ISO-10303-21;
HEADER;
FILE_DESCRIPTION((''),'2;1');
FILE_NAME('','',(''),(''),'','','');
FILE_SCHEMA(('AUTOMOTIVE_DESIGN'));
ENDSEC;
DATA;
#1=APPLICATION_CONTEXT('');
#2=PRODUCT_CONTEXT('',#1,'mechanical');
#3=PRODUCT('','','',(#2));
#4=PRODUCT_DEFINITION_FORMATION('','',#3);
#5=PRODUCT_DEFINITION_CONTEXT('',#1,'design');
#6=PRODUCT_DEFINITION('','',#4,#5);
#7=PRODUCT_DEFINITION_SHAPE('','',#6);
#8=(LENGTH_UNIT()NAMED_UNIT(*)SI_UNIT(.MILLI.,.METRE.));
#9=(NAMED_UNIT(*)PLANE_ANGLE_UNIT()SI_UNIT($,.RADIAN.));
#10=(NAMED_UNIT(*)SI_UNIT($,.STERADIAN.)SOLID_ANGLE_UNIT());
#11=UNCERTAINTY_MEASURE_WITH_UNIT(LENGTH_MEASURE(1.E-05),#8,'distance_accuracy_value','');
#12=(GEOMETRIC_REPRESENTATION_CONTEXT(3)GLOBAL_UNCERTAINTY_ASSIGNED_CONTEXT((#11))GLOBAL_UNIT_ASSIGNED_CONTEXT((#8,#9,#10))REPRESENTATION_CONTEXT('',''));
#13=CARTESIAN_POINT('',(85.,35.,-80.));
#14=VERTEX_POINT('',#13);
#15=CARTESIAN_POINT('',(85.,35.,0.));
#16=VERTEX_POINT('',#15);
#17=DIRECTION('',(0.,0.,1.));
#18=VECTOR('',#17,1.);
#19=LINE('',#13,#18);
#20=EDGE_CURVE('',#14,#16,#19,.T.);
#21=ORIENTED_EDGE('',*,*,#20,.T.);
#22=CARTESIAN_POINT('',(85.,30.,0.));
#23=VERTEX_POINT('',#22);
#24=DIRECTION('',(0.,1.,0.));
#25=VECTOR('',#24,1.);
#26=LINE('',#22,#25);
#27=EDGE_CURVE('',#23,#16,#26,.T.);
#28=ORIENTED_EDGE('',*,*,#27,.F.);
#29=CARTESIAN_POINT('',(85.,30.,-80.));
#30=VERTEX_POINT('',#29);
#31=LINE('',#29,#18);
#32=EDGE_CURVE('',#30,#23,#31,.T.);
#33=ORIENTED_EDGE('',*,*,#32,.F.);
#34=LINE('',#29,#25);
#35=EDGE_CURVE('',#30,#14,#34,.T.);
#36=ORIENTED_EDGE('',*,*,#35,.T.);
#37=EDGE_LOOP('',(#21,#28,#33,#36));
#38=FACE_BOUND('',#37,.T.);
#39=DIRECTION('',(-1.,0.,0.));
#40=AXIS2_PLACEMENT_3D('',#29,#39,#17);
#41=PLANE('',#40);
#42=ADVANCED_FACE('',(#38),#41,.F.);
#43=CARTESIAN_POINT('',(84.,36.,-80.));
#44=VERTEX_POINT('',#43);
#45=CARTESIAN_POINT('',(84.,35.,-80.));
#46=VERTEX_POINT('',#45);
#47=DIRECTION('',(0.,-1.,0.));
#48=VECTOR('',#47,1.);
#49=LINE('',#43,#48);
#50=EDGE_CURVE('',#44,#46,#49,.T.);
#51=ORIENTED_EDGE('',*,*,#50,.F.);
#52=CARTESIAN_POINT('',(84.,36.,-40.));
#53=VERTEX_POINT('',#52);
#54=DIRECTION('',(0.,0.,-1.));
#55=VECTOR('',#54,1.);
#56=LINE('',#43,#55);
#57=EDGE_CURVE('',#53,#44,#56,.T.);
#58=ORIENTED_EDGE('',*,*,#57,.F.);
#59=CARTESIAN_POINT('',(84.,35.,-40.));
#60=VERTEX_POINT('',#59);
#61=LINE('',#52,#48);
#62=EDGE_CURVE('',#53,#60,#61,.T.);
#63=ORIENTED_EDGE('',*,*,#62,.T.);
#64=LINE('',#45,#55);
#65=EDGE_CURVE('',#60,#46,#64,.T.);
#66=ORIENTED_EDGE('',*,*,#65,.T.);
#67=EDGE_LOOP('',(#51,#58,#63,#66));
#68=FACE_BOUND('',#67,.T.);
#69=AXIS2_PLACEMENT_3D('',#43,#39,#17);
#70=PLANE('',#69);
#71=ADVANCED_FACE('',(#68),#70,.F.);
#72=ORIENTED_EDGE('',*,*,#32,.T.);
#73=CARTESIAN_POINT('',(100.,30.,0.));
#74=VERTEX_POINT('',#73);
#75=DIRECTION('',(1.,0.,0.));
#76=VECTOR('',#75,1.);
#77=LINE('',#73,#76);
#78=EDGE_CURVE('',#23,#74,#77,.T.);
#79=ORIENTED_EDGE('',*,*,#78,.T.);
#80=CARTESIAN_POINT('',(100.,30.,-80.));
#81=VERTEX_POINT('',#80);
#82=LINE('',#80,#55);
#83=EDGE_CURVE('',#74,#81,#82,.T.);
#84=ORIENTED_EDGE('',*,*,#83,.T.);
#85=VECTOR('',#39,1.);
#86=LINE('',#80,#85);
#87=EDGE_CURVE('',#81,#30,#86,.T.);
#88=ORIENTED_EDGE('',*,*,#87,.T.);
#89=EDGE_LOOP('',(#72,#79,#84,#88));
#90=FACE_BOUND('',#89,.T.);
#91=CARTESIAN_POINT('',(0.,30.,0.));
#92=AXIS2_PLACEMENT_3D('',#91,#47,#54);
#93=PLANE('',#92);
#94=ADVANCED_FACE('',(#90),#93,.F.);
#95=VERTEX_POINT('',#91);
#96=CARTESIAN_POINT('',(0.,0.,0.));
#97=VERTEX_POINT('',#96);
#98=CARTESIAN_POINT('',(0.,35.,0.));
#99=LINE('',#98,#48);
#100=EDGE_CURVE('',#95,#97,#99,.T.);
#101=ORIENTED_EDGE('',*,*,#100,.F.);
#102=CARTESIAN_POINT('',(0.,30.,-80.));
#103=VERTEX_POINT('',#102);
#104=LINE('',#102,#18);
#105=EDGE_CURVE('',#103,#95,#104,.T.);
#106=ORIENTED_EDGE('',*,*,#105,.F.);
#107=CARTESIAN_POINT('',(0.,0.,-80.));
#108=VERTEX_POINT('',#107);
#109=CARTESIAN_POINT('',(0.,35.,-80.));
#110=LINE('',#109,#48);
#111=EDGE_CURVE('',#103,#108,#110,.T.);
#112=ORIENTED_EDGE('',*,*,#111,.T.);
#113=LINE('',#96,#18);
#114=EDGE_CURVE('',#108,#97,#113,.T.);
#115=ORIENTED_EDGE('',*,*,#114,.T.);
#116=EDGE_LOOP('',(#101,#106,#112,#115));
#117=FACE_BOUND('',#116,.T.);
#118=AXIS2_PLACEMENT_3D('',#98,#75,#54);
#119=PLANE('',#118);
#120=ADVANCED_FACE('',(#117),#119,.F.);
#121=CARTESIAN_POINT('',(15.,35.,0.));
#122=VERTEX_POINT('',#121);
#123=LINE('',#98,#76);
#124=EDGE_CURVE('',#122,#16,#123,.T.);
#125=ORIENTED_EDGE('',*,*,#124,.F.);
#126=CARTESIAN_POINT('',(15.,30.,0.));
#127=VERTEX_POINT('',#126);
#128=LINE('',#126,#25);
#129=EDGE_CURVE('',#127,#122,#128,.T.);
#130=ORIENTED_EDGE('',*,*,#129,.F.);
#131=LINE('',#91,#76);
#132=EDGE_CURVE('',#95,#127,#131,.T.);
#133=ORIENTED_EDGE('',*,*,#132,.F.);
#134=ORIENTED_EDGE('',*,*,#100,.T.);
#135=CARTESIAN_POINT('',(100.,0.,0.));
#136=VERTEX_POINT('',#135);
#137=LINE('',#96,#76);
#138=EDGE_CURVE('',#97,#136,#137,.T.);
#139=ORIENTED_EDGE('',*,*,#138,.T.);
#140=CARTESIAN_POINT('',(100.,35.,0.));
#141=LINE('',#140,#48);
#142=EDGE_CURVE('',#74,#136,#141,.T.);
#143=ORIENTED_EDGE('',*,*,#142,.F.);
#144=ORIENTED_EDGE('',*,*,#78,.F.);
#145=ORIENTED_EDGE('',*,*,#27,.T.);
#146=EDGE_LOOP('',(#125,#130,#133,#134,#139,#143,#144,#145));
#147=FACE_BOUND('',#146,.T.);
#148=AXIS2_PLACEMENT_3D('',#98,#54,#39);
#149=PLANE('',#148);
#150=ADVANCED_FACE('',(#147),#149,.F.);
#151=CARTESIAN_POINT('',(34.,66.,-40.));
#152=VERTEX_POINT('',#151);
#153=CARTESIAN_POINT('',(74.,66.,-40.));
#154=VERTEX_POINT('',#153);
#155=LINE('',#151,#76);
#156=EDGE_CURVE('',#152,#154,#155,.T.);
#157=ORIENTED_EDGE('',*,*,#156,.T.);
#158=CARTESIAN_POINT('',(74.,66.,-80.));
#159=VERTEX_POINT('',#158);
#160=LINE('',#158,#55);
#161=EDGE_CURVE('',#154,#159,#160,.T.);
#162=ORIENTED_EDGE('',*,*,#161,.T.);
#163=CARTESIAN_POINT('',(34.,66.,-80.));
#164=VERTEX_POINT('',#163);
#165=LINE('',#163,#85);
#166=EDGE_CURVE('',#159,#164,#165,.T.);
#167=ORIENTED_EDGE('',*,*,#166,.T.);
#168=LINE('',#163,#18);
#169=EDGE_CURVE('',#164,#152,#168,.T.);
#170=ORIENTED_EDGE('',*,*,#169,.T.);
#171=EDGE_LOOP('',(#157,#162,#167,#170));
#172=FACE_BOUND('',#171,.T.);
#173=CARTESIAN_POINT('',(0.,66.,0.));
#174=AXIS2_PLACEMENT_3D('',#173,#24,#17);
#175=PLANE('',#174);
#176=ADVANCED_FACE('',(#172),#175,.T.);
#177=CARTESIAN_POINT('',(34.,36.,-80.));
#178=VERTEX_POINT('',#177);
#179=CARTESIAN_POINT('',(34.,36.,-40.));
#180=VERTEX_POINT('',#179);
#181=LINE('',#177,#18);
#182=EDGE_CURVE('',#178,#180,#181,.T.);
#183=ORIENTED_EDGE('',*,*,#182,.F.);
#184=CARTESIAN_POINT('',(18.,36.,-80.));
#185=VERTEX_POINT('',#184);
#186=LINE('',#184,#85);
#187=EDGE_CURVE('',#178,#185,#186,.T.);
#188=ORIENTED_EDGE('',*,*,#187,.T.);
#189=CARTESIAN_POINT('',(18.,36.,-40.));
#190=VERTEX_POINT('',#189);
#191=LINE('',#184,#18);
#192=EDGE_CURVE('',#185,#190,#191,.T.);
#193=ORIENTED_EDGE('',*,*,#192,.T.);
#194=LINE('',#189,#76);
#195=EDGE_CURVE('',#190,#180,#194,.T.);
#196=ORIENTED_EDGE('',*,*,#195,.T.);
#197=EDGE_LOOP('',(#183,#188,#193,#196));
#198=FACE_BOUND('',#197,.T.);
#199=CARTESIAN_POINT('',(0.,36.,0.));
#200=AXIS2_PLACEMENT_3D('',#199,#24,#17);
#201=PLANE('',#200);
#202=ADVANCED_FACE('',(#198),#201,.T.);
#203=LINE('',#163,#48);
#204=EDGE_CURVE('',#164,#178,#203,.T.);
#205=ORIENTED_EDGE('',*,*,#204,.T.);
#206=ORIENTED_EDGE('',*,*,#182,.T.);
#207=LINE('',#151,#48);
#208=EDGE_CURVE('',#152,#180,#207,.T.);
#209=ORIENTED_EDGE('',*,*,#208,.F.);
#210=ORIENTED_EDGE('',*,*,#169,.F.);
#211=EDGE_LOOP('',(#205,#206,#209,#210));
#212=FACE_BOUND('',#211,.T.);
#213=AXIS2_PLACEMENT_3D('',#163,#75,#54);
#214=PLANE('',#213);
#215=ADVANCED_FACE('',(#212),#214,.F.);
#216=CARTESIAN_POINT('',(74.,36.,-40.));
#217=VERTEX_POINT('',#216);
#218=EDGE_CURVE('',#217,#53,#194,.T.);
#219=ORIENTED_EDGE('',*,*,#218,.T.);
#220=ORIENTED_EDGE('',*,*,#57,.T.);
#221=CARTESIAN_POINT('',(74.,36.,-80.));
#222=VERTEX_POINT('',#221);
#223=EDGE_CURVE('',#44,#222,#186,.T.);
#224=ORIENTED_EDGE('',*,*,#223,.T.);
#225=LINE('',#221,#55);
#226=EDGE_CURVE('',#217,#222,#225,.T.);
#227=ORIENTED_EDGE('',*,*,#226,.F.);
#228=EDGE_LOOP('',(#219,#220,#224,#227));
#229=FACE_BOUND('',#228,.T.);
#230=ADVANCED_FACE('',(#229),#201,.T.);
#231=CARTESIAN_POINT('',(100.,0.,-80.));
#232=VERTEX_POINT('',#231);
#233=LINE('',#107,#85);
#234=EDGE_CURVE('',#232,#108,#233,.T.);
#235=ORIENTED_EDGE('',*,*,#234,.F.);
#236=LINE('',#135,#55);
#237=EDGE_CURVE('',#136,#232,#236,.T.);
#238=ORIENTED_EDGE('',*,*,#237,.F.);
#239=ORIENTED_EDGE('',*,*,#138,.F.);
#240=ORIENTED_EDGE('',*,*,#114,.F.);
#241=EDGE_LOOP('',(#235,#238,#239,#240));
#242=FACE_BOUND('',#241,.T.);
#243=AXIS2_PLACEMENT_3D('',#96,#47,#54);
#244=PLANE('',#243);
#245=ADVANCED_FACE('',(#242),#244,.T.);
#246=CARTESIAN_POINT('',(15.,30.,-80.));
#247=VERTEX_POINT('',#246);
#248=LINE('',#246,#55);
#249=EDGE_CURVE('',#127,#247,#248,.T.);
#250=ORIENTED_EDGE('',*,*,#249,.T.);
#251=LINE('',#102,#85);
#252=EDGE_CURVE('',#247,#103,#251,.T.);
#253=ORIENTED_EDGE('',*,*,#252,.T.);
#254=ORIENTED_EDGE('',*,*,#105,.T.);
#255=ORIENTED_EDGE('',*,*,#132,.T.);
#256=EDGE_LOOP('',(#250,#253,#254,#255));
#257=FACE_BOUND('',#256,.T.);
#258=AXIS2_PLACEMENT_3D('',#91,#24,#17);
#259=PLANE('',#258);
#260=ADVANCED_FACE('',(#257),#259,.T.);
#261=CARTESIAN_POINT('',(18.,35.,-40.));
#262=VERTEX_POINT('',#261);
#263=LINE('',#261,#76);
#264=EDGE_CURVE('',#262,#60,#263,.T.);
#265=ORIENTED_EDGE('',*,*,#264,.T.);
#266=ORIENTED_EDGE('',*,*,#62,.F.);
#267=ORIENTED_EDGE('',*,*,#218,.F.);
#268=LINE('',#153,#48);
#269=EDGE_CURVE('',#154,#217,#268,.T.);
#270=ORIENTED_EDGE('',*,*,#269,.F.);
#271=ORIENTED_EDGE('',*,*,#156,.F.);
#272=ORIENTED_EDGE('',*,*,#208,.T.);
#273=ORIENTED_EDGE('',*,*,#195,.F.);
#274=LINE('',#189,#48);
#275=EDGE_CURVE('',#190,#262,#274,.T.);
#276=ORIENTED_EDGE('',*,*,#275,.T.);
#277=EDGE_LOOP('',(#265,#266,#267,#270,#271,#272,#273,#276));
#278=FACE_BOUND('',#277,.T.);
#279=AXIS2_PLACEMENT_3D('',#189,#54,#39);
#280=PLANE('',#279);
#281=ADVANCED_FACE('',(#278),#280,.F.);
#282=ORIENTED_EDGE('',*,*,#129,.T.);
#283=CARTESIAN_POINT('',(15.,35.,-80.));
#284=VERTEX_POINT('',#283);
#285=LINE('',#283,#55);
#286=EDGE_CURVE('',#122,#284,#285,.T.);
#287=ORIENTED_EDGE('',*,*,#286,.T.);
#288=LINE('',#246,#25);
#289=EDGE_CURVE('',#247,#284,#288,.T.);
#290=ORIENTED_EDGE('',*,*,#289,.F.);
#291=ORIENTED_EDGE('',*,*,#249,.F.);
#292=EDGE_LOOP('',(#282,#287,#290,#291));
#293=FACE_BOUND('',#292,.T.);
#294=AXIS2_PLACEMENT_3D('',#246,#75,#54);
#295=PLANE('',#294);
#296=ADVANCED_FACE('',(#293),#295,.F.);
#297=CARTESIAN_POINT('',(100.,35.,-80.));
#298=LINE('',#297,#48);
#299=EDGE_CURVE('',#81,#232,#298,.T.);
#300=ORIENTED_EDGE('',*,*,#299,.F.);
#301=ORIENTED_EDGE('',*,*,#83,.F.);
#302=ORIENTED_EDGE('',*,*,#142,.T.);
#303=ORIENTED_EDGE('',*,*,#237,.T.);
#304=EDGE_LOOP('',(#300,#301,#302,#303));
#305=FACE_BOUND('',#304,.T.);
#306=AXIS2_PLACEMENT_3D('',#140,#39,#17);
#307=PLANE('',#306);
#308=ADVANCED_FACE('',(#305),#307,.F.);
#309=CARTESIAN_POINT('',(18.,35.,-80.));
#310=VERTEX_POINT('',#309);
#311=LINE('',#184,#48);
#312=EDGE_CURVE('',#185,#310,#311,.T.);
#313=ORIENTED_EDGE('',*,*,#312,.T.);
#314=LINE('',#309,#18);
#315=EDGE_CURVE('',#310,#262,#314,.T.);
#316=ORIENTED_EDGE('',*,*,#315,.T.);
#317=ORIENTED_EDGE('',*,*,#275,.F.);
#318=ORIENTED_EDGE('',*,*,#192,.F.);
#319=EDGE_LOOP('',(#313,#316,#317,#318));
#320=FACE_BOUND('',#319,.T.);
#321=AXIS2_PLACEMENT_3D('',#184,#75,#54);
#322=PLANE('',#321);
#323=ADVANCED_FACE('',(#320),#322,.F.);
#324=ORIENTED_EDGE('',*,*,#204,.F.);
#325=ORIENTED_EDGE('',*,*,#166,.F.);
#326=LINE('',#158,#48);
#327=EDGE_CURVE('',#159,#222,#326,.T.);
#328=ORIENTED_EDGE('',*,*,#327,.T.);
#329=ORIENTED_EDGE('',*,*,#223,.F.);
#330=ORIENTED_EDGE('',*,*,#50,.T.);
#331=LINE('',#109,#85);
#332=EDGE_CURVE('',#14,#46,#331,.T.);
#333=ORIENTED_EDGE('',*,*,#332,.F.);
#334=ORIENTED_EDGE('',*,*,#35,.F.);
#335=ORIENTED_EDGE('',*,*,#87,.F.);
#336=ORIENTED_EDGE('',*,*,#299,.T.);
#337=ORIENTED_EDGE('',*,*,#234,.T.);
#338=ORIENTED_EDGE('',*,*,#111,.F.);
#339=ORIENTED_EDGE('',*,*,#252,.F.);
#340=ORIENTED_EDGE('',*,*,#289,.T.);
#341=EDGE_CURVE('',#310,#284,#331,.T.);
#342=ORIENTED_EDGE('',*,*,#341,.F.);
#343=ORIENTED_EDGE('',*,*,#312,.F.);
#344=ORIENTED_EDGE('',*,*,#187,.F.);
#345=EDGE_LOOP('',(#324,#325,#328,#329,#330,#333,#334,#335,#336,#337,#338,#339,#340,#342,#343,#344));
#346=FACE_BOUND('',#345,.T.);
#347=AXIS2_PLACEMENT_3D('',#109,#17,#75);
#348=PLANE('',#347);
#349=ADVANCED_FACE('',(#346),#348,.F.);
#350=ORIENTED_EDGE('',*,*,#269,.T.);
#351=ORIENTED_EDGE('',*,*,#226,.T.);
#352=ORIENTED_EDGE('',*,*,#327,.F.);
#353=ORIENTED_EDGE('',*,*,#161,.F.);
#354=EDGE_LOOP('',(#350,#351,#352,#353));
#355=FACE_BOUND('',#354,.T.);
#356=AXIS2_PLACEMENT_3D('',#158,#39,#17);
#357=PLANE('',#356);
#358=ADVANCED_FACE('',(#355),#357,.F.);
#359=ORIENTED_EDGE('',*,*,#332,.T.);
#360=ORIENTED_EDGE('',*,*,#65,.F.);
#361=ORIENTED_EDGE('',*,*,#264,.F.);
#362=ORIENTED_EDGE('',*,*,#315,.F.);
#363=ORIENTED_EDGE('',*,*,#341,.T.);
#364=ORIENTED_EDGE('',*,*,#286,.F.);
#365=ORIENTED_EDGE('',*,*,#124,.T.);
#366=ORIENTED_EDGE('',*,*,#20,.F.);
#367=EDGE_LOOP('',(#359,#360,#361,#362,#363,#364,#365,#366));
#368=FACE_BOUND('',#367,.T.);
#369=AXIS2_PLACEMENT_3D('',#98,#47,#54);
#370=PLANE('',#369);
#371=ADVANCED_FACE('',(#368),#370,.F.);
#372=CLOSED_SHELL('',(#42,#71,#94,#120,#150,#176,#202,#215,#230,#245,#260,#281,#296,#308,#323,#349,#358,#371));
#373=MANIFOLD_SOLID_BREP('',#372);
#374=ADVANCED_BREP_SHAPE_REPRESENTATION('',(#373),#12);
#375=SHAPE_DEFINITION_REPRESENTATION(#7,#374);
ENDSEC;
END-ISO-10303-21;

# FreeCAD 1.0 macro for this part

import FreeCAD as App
import Part
import Sketcher
from FreeCAD import Vector

doc = App.newDocument("Part")
body = doc.addObject("PartDesign::Body", "Body")

# Sketch on XZ plane
sketch1 = body.newObject("Sketcher::SketchObject", "Sketch")
sketch1.AttachmentSupport = (doc.getObject("XZ_Plane"), [""])
sketch1.MapMode = "FlatFace"
sketch1.addGeometry(Part.LineSegment(Vector(0, -80, 0), Vector(0, 0, 0)), False)
sketch1.addGeometry(Part.LineSegment(Vector(0, 0, 0), Vector(100, 0, 0)), False)
sketch1.addGeometry(Part.LineSegment(Vector(100, 0, 0), Vector(100, -80, 0)), False)
sketch1.addGeometry(Part.LineSegment(Vector(100, -80, 0), Vector(0, -80, 0)), False)
sketch1.addConstraint(Sketcher.Constraint("Coincident", 0, 2, 1, 1))
sketch1.addConstraint(Sketcher.Constraint("Coincident", 1, 2, 2, 1))
sketch1.addConstraint(Sketcher.Constraint("Coincident", 2, 2, 3, 1))
sketch1.addConstraint(Sketcher.Constraint("Coincident", 3, 2, 0, 1))
sketch1.addConstraint(Sketcher.Constraint("Vertical", 0))
sketch1.addConstraint(Sketcher.Constraint("Horizontal", 1))
sketch1.addConstraint(Sketcher.Constraint("Vertical", 2))
sketch1.addConstraint(Sketcher.Constraint("Horizontal", 3))
sketch1.addConstraint(Sketcher.Constraint("Coincident", 0, 2, -1, 1))
sketch1.addConstraint(Sketcher.Constraint("DistanceX", 1, 1, 1, 2, 100.0))
sketch1.addConstraint(Sketcher.Constraint("DistanceY", 0, 1, 0, 2, 80.0))
pad1 = body.newObject("PartDesign::Pad", "Pad")
pad1.Profile = sketch1
pad1.Length = 35
pad1.Reversed = True

# Sketch on XZ plane
sketch2 = body.newObject("Sketcher::SketchObject", "Sketch001")
sketch2.AttachmentSupport = (doc.getObject("XZ_Plane"), [""])
sketch2.MapMode = "FlatFace"
sketch2.AttachmentOffset = App.Placement(Vector(0, 0, -35), App.Rotation())
sketch2.addGeometry(Part.LineSegment(Vector(18, -80, 0), Vector(18, -40, 0)), False)
sketch2.addGeometry(Part.LineSegment(Vector(18, -40, 0), Vector(84, -40, 0)), False)
sketch2.addGeometry(Part.LineSegment(Vector(84, -40, 0), Vector(84, -80, 0)), False)
sketch2.addGeometry(Part.LineSegment(Vector(84, -80, 0), Vector(18, -80, 0)), False)
sketch2.addConstraint(Sketcher.Constraint("Coincident", 0, 2, 1, 1))
sketch2.addConstraint(Sketcher.Constraint("Coincident", 1, 2, 2, 1))
sketch2.addConstraint(Sketcher.Constraint("Coincident", 2, 2, 3, 1))
sketch2.addConstraint(Sketcher.Constraint("Coincident", 3, 2, 0, 1))
sketch2.addConstraint(Sketcher.Constraint("Vertical", 0))
sketch2.addConstraint(Sketcher.Constraint("Horizontal", 1))
sketch2.addConstraint(Sketcher.Constraint("Vertical", 2))
sketch2.addConstraint(Sketcher.Constraint("Horizontal", 3))
sketch2.addConstraint(Sketcher.Constraint("DistanceX", 1, 1, 1, 2, 66.0))
sketch2.addConstraint(Sketcher.Constraint("DistanceY", 0, 1, 0, 2, 40.0))
sketch2.addConstraint(Sketcher.Constraint("DistanceX", -1, 1, 0, 2, 18.0))
sketch2.addConstraint(Sketcher.Constraint("DistanceY", 0, 2, -1, 1, 40.0))
pad2 = body.newObject("PartDesign::Pad", "Pad001")
pad2.Profile = sketch2
pad2.Length = 1
pad2.Reversed = True

# Sketch on XZ plane
sketch3 = body.newObject("Sketcher::SketchObject", "Sketch002")
sketch3.AttachmentSupport = (doc.getObject("XZ_Plane"), [""])
sketch3.MapMode = "FlatFace"
sketch3.AttachmentOffset = App.Placement(Vector(0, 0, -36), App.Rotation())
sketch3.addGeometry(Part.LineSegment(Vector(34, -80, 0), Vector(34, -40, 0)), False)
sketch3.addGeometry(Part.LineSegment(Vector(34, -40, 0), Vector(74, -40, 0)), False)
sketch3.addGeometry(Part.LineSegment(Vector(74, -40, 0), Vector(74, -80, 0)), False)
sketch3.addGeometry(Part.LineSegment(Vector(74, -80, 0), Vector(34, -80, 0)), False)
sketch3.addConstraint(Sketcher.Constraint("Coincident", 0, 2, 1, 1))
sketch3.addConstraint(Sketcher.Constraint("Coincident", 1, 2, 2, 1))
sketch3.addConstraint(Sketcher.Constraint("Coincident", 2, 2, 3, 1))
sketch3.addConstraint(Sketcher.Constraint("Coincident", 3, 2, 0, 1))
sketch3.addConstraint(Sketcher.Constraint("Vertical", 0))
sketch3.addConstraint(Sketcher.Constraint("Horizontal", 1))
sketch3.addConstraint(Sketcher.Constraint("Vertical", 2))
sketch3.addConstraint(Sketcher.Constraint("Horizontal", 3))
sketch3.addConstraint(Sketcher.Constraint("Equal", 3, 0))
sketch3.addConstraint(Sketcher.Constraint("DistanceX", 1, 1, 1, 2, 40.0))
sketch3.addConstraint(Sketcher.Constraint("DistanceX", -1, 1, 0, 2, 34.0))
sketch3.addConstraint(Sketcher.Constraint("DistanceY", 0, 2, -1, 1, 40.0))
pad3 = body.newObject("PartDesign::Pad", "Pad002")
pad3.Profile = sketch3
pad3.Length = 30
pad3.Reversed = True

# Sketch on XZ plane
sketch4 = body.newObject("Sketcher::SketchObject", "Sketch003")
sketch4.AttachmentSupport = (doc.getObject("XZ_Plane"), [""])
sketch4.MapMode = "FlatFace"
sketch4.AttachmentOffset = App.Placement(Vector(0, 0, -35), App.Rotation())
sketch4.addGeometry(Part.LineSegment(Vector(0, -80, 0), Vector(0, 0, 0)), False)
sketch4.addGeometry(Part.LineSegment(Vector(0, 0, 0), Vector(15, 0, 0)), False)
sketch4.addGeometry(Part.LineSegment(Vector(15, 0, 0), Vector(15, -80, 0)), False)
sketch4.addGeometry(Part.LineSegment(Vector(15, -80, 0), Vector(0, -80, 0)), False)
sketch4.addGeometry(Part.LineSegment(Vector(85, -80, 0), Vector(85, 0, 0)), False)
sketch4.addGeometry(Part.LineSegment(Vector(85, 0, 0), Vector(100, 0, 0)), False)
sketch4.addGeometry(Part.LineSegment(Vector(100, 0, 0), Vector(100, -80, 0)), False)
sketch4.addGeometry(Part.LineSegment(Vector(100, -80, 0), Vector(85, -80, 0)), False)
sketch4.addConstraint(Sketcher.Constraint("Coincident", 0, 2, 1, 1))
sketch4.addConstraint(Sketcher.Constraint("Coincident", 1, 2, 2, 1))
sketch4.addConstraint(Sketcher.Constraint("Coincident", 2, 2, 3, 1))
sketch4.addConstraint(Sketcher.Constraint("Coincident", 3, 2, 0, 1))
sketch4.addConstraint(Sketcher.Constraint("Coincident", 4, 2, 5, 1))
sketch4.addConstraint(Sketcher.Constraint("Coincident", 5, 2, 6, 1))
sketch4.addConstraint(Sketcher.Constraint("Coincident", 6, 2, 7, 1))
sketch4.addConstraint(Sketcher.Constraint("Coincident", 7, 2, 4, 1))
sketch4.addConstraint(Sketcher.Constraint("Vertical", 0))
sketch4.addConstraint(Sketcher.Constraint("Horizontal", 1))
sketch4.addConstraint(Sketcher.Constraint("Vertical", 2))
sketch4.addConstraint(Sketcher.Constraint("Horizontal", 3))
sketch4.addConstraint(Sketcher.Constraint("Vertical", 4))
sketch4.addConstraint(Sketcher.Constraint("Horizontal", 5))
sketch4.addConstraint(Sketcher.Constraint("Vertical", 6))
sketch4.addConstraint(Sketcher.Constraint("Horizontal", 7))
sketch4.addConstraint(Sketcher.Constraint("Coincident", 0, 2, -1, 1))
sketch4.addConstraint(Sketcher.Constraint("PointOnObject", 4, 2, -1))
sketch4.addConstraint(Sketcher.Constraint("Horizontal", 3, 2, 6, 2))
sketch4.addConstraint(Sketcher.Constraint("Equal", 3, 5))
sketch4.addConstraint(Sketcher.Constraint("DistanceX", 1, 1, 1, 2, 15.0))
sketch4.addConstraint(Sketcher.Constraint("DistanceY", 0, 1, 0, 2, 80.0))
sketch4.addConstraint(Sketcher.Constraint("DistanceX", -1, 1, 4, 2, 85.0))
pocket1 = body.newObject("PartDesign::Pocket", "Pocket")
pocket1.Profile = sketch4
pocket1.Length = 5
pocket1.Reversed = True

doc.recompute()
